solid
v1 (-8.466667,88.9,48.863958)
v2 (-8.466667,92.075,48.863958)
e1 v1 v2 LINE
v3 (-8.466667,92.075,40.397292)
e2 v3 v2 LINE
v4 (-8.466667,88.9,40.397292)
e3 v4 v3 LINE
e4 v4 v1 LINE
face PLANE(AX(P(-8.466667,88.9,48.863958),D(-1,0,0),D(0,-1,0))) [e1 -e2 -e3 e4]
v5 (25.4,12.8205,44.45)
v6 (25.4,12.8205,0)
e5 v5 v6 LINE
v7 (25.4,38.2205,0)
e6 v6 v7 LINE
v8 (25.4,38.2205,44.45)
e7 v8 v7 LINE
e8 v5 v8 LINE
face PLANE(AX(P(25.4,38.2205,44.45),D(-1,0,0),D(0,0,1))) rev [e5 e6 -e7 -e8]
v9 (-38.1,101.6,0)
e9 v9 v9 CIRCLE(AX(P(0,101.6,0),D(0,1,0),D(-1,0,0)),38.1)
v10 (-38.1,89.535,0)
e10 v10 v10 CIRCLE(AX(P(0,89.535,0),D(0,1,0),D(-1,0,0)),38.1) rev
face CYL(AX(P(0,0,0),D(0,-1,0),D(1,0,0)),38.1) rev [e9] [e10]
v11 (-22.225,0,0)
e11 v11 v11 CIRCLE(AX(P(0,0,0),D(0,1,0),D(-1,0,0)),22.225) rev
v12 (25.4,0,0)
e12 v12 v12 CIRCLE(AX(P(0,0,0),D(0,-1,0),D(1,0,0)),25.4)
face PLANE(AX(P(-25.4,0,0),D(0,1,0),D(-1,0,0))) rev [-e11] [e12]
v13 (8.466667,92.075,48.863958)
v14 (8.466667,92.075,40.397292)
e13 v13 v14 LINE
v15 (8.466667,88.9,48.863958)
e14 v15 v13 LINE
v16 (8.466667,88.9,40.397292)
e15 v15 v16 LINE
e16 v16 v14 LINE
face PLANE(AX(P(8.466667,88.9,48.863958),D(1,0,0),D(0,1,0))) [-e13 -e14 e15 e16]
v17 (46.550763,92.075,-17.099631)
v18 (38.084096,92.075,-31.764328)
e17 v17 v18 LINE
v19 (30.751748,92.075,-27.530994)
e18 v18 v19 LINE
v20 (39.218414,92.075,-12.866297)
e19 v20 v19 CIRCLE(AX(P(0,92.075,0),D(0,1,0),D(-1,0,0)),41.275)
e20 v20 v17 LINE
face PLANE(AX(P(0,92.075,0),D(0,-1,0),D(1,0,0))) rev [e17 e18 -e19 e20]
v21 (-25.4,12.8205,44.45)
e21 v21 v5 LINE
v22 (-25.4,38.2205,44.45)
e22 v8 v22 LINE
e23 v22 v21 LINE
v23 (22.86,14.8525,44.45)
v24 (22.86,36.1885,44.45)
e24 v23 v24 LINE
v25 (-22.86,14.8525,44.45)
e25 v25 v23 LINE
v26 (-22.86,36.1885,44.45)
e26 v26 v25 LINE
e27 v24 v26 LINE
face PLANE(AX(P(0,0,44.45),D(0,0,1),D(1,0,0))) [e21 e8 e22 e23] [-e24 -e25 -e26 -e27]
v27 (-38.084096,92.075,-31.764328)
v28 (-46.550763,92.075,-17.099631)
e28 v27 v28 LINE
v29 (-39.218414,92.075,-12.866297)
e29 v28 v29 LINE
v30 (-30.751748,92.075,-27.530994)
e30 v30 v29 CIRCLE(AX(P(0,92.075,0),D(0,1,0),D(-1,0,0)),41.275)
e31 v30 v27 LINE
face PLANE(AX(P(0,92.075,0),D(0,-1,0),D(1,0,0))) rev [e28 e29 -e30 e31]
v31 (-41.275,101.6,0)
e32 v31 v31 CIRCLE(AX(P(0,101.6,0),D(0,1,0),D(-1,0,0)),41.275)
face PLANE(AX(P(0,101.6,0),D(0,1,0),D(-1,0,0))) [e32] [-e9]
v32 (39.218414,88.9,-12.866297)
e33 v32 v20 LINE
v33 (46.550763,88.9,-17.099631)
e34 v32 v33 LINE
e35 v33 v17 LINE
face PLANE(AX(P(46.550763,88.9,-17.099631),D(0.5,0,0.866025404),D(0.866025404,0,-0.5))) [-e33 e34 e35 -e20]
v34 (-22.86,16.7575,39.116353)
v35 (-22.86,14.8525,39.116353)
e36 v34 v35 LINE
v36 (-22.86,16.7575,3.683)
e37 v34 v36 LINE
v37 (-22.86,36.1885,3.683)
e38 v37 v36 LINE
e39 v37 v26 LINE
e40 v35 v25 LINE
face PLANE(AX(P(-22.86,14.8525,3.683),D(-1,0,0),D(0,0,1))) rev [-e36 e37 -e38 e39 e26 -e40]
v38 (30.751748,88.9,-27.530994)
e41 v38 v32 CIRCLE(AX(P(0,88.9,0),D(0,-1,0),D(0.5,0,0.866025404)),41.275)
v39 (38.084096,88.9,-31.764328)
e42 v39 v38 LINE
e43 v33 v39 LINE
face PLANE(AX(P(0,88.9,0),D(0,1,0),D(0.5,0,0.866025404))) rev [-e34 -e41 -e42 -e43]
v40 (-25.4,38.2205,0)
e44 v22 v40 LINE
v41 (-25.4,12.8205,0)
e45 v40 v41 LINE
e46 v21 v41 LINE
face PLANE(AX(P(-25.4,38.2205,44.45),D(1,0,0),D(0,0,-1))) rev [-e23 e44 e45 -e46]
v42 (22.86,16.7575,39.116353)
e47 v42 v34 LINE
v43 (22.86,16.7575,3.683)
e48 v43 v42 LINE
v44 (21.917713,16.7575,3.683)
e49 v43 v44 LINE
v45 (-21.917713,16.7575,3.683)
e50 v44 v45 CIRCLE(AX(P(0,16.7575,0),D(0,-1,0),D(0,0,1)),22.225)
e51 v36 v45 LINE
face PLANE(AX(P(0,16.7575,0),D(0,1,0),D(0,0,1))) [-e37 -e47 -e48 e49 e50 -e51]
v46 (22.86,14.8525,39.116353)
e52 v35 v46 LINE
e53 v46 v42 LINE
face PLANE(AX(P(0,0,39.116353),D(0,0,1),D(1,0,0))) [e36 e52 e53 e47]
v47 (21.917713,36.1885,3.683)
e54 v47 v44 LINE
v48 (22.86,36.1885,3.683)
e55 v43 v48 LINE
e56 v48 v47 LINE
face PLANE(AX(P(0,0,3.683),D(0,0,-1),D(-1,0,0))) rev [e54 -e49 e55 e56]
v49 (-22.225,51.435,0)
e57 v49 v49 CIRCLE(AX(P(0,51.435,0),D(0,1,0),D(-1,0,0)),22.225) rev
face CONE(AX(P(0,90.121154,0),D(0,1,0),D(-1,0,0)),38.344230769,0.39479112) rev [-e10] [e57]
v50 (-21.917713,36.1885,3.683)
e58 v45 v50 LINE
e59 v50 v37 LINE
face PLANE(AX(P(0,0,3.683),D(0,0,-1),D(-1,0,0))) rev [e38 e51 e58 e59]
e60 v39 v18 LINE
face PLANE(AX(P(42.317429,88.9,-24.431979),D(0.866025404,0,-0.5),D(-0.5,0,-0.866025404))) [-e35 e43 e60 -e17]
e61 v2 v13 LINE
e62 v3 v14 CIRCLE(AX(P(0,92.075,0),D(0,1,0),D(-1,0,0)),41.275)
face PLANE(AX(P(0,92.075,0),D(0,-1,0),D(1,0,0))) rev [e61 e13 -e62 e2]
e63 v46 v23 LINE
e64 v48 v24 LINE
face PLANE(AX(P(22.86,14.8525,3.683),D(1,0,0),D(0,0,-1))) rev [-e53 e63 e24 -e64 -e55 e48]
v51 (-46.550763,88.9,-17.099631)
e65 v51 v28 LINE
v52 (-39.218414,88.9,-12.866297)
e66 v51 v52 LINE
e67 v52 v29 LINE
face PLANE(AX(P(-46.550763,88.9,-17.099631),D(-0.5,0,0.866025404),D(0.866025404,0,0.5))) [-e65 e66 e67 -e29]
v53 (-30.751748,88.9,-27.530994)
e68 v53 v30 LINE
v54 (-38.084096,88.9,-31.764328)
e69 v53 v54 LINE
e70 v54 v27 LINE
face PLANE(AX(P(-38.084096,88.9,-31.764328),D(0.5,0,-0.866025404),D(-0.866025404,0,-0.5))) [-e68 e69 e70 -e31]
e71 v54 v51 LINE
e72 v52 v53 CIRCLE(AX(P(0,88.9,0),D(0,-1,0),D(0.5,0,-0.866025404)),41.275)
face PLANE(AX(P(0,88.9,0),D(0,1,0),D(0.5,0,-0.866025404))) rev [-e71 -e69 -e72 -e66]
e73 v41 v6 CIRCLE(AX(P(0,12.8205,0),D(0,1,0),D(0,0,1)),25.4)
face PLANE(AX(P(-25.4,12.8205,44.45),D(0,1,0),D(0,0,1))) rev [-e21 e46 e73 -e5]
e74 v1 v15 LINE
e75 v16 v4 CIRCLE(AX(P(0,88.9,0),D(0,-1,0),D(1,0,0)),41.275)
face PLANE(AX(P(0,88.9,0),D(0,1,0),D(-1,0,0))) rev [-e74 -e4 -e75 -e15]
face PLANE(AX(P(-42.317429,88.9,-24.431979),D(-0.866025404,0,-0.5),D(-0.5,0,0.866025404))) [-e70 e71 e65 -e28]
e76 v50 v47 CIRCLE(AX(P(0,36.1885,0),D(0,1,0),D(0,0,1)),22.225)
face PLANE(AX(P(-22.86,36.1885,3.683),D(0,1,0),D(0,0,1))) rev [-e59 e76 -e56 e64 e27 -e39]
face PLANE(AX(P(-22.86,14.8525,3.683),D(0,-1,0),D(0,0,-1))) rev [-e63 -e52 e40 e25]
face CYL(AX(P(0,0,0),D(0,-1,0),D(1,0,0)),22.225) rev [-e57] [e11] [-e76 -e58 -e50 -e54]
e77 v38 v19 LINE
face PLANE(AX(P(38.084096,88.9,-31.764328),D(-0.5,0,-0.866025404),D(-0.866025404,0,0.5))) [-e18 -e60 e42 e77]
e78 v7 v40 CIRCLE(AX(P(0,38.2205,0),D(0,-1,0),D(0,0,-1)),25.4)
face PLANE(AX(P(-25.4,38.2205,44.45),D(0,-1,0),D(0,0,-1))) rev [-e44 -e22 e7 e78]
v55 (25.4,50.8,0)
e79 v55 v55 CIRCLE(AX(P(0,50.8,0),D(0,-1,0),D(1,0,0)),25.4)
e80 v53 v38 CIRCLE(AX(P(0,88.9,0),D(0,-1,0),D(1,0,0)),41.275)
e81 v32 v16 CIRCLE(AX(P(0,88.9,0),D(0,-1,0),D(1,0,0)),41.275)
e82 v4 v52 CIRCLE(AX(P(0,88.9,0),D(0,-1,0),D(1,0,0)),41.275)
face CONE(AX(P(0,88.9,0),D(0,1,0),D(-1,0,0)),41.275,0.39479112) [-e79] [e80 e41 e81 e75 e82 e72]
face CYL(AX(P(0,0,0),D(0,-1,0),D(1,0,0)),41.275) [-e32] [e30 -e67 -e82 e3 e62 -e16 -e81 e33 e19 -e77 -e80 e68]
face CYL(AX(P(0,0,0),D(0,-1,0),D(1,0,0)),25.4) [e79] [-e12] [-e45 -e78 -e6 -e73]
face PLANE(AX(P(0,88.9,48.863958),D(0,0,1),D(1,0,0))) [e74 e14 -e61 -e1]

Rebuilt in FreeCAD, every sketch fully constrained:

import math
import FreeCAD as App
import Part
import Sketcher
Q = App.Units.Quantity


def faces_at(feature, points):
    """Names of the faces that lie closest to the given points."""
    faces = feature.Shape.Faces
    near = lambda p: min(range(len(faces)), key=lambda i: faces[i].distToShape(Part.Vertex(*p))[0])
    return sorted({f"Face{near(p) + 1}" for p in points})

doc = App.newDocument("Part")
body = doc.addObject("PartDesign::Body", "Body")

# Sketch on XY plane
sketch1 = doc.addObject("Sketcher::SketchObject", "Sketch")
body.addObject(sketch1)
sketch1.AttachmentSupport = (doc.XY_Plane, [""])
sketch1.MapMode = "FlatFace"
sketch1.addGeometry(Part.LineSegment(App.Vector(0, 92.1, 0), App.Vector(-41.3, 92.1, 0)), False)
sketch1.addGeometry(Part.LineSegment(App.Vector(-41.3, 92.1, 0), App.Vector(-41.3, 88.9, 0)), False)
sketch1.addGeometry(Part.LineSegment(App.Vector(-41.3, 88.9, 0), App.Vector(-25.4, 50.8, 0)), False)
sketch1.addGeometry(Part.LineSegment(App.Vector(-25.4, 50.8, 0), App.Vector(-25.4, 0, 0)), False)
sketch1.addGeometry(Part.LineSegment(App.Vector(-25.4, 0, 0), App.Vector(0, 0, 0)), False)
sketch1.addGeometry(Part.LineSegment(App.Vector(0, 0, 0), App.Vector(0, 92.1, 0)), False)
sketch1.addConstraint(Sketcher.Constraint("Coincident", 0, 2, 1, 1))
sketch1.addConstraint(Sketcher.Constraint("Coincident", 1, 2, 2, 1))
sketch1.addConstraint(Sketcher.Constraint("Coincident", 2, 2, 3, 1))
sketch1.addConstraint(Sketcher.Constraint("Coincident", 3, 2, 4, 1))
sketch1.addConstraint(Sketcher.Constraint("Coincident", 4, 2, 5, 1))
sketch1.addConstraint(Sketcher.Constraint("Coincident", 5, 2, 0, 1))
sketch1.addConstraint(Sketcher.Constraint("Horizontal", 0))
sketch1.addConstraint(Sketcher.Constraint("Vertical", 1))
sketch1.addConstraint(Sketcher.Constraint("Vertical", 3))
sketch1.addConstraint(Sketcher.Constraint("Horizontal", 4))
sketch1.addConstraint(Sketcher.Constraint("Vertical", 5))
sketch1.addConstraint(Sketcher.Constraint("Coincident", 4, 2, -1, 1))
sketch1.addConstraint(Sketcher.Constraint("DistanceX", 4, 1, 4, 2, Q("1 in")))
sketch1.addConstraint(Sketcher.Constraint("DistanceY", 3, 2, 3, 1, Q("2 in")))
sketch1.addConstraint(Sketcher.Constraint("DistanceY", -1, 1, 1, 2, Q("3.5 in")))
sketch1.addConstraint(Sketcher.Constraint("DistanceX", 0, 2, 0, 1, Q("1.625 in")))
sketch1.addConstraint(Sketcher.Constraint("DistanceY", 1, 2, 1, 1, Q("0.125 in")))
revolution = doc.addObject("PartDesign::Revolution", "Revolution")
body.addObject(revolution)
revolution.Profile = sketch1
revolution.ReferenceAxis = (sketch1, ["V_Axis"])
revolution.Angle = 360
doc.recompute()

thickness = doc.addObject("PartDesign::Thickness", "Thickness")
body.addObject(thickness)
thickness.Base = (revolution, faces_at(revolution, [(0, 0, 0), (0, 92.075, 0)]))
thickness.Value = Q("0.125 in")
thickness.Reversed = True
thickness.Join = "Intersection"

# Sketch on XZ plane
sketch2 = doc.addObject("Sketcher::SketchObject", "Sketch001")
body.addObject(sketch2)
sketch2.AttachmentSupport = (doc.XZ_Plane, [""])
sketch2.MapMode = "FlatFace"
sketch2.AttachmentOffset = App.Placement(App.Vector(0, 0, -3.5 * 25.4), App.Rotation())
sketch2.addGeometry(Part.LineSegment(App.Vector(-8, 40, 0), App.Vector(-8, 49, 0)), False)
sketch2.addGeometry(Part.LineSegment(App.Vector(-8, 49, 0), App.Vector(8, 49, 0)), False)
sketch2.addGeometry(Part.LineSegment(App.Vector(8, 49, 0), App.Vector(8, 40, 0)), False)
sketch2.addGeometry(Part.ArcOfCircle(Part.Circle(App.Vector(0, 0, 0), App.Vector(0, 0, 1), 41), math.radians(78), math.radians(102)), False)
sketch2.addConstraint(Sketcher.Constraint("Coincident", 0, 2, 1, 1))
sketch2.addConstraint(Sketcher.Constraint("Coincident", 1, 2, 2, 1))
sketch2.addConstraint(Sketcher.Constraint("Coincident", 2, 2, 3, 1))
sketch2.addConstraint(Sketcher.Constraint("Coincident", 3, 2, 0, 1))
sketch2.addConstraint(Sketcher.Constraint("Vertical", 0))
sketch2.addConstraint(Sketcher.Constraint("Horizontal", 1))
sketch2.addConstraint(Sketcher.Constraint("Vertical", 2))
sketch2.addConstraint(Sketcher.Constraint("Coincident", 3, 3, -1, 1))
sketch2.addConstraint(Sketcher.Constraint("Horizontal", 2, 2, 3, 2))
sketch2.addConstraint(Sketcher.Constraint("Radius", 3, Q("1.625 in")))
sketch2.addConstraint(Sketcher.Constraint("DistanceX", 1, 1, 1, 2, 16.933333))
sketch2.addConstraint(Sketcher.Constraint("DistanceY", 0, 1, 0, 2, 8.466667))
pad1 = doc.addObject("PartDesign::Pad", "Pad")
body.addObject(pad1)
pad1.Profile = sketch2
pad1.Length = Q("0.125 in")
pad1.Reversed = True
doc.recompute()

polarpattern = doc.addObject("PartDesign::PolarPattern", "PolarPattern")
body.addObject(polarpattern)
polarpattern.Originals = [pad1]
polarpattern.Axis = (doc.Y_Axis, [""])
polarpattern.Angle = 360
polarpattern.Occurrences = 3
body.Tip = polarpattern

# Sketch on XY plane
sketch3 = doc.addObject("Sketcher::SketchObject", "Sketch002")
body.addObject(sketch3)
sketch3.AttachmentSupport = (doc.XY_Plane, [""])
sketch3.MapMode = "FlatFace"
sketch3.addGeometry(Part.LineSegment(App.Vector(-25, 38, 0), App.Vector(-25, 13, 0)), False)
sketch3.addGeometry(Part.LineSegment(App.Vector(-25, 13, 0), App.Vector(25, 13, 0)), False)
sketch3.addGeometry(Part.LineSegment(App.Vector(25, 13, 0), App.Vector(25, 38, 0)), False)
sketch3.addGeometry(Part.LineSegment(App.Vector(25, 38, 0), App.Vector(-25, 38, 0)), False)
sketch3.addConstraint(Sketcher.Constraint("Coincident", 0, 2, 1, 1))
sketch3.addConstraint(Sketcher.Constraint("Coincident", 1, 2, 2, 1))
sketch3.addConstraint(Sketcher.Constraint("Coincident", 2, 2, 3, 1))
sketch3.addConstraint(Sketcher.Constraint("Coincident", 3, 2, 0, 1))
sketch3.addConstraint(Sketcher.Constraint("Vertical", 0))
sketch3.addConstraint(Sketcher.Constraint("Horizontal", 1))
sketch3.addConstraint(Sketcher.Constraint("Vertical", 2))
sketch3.addConstraint(Sketcher.Constraint("Horizontal", 3))
sketch3.addConstraint(Sketcher.Constraint("DistanceX", 1, 1, 1, 2, Q("2 in")))
sketch3.addConstraint(Sketcher.Constraint("DistanceY", 0, 2, 0, 1, Q("1 in")))
sketch3.addConstraint(Sketcher.Constraint("DistanceX", 0, 2, -1, 1, Q("1 in")))
sketch3.addConstraint(Sketcher.Constraint("DistanceY", -1, 1, 0, 2, 12.8205))
pad2 = doc.addObject("PartDesign::Pad", "Pad001")
body.addObject(pad2)
pad2.Profile = sketch3
pad2.Length = Q("1.75 in")

# Sketch on XZ plane
sketch4 = doc.addObject("Sketcher::SketchObject", "Sketch003")
body.addObject(sketch4)
sketch4.AttachmentSupport = (doc.XZ_Plane, [""])
sketch4.MapMode = "FlatFace"
sketch4.AttachmentOffset = App.Placement(App.Vector(0, 0, -38.2205), App.Rotation())
sketch4.addGeometry(Part.Circle(App.Vector(0, 0, 0), App.Vector(0, 0, 1), 22), False)
sketch4.addConstraint(Sketcher.Constraint("Coincident", 0, 3, -1, 1))
sketch4.addConstraint(Sketcher.Constraint("Diameter", 0, Q("1.75 in")))
pocket1 = doc.addObject("PartDesign::Pocket", "Pocket")
body.addObject(pocket1)
pocket1.Profile = sketch4
pocket1.Type = "ThroughAll"
pocket1.Midplane = True

# Sketch on XY plane
sketch5 = doc.addObject("Sketcher::SketchObject", "Sketch004")
body.addObject(sketch5)
sketch5.AttachmentSupport = (doc.XY_Plane, [""])
sketch5.MapMode = "FlatFace"
sketch5.AttachmentOffset = App.Placement(App.Vector(0, 0, 1.75 * 25.4), App.Rotation())
sketch5.addGeometry(Part.LineSegment(App.Vector(-23, 36, 0), App.Vector(-23, 15, 0)), False)
sketch5.addGeometry(Part.LineSegment(App.Vector(-23, 15, 0), App.Vector(23, 15, 0)), False)
sketch5.addGeometry(Part.LineSegment(App.Vector(23, 15, 0), App.Vector(23, 36, 0)), False)
sketch5.addGeometry(Part.LineSegment(App.Vector(23, 36, 0), App.Vector(-23, 36, 0)), False)
sketch5.addConstraint(Sketcher.Constraint("Coincident", 0, 2, 1, 1))
sketch5.addConstraint(Sketcher.Constraint("Coincident", 1, 2, 2, 1))
sketch5.addConstraint(Sketcher.Constraint("Coincident", 2, 2, 3, 1))
sketch5.addConstraint(Sketcher.Constraint("Coincident", 3, 2, 0, 1))
sketch5.addConstraint(Sketcher.Constraint("Vertical", 0))
sketch5.addConstraint(Sketcher.Constraint("Horizontal", 1))
sketch5.addConstraint(Sketcher.Constraint("Vertical", 2))
sketch5.addConstraint(Sketcher.Constraint("Horizontal", 3))
sketch5.addConstraint(Sketcher.Constraint("DistanceX", 1, 1, 1, 2, Q("1.8 in")))
sketch5.addConstraint(Sketcher.Constraint("DistanceY", 0, 2, 0, 1, Q("0.84 in")))
sketch5.addConstraint(Sketcher.Constraint("DistanceX", 0, 2, -1, 1, Q("0.9 in")))
sketch5.addConstraint(Sketcher.Constraint("DistanceY", -1, 1, 0, 2, 14.8525))
pocket2 = doc.addObject("PartDesign::Pocket", "Pocket001")
body.addObject(pocket2)
pocket2.Profile = sketch5
pocket2.Length = Q("1.605 in")

# Sketch on XZ plane
sketch6 = doc.addObject("Sketcher::SketchObject", "Sketch005")
body.addObject(sketch6)
sketch6.AttachmentSupport = (doc.XZ_Plane, [""])
sketch6.MapMode = "FlatFace"
sketch6.AttachmentOffset = App.Placement(App.Vector(0, 0, -14.8525), App.Rotation())
sketch6.addGeometry(Part.LineSegment(App.Vector(-22.9, 22.9, 0), App.Vector(22.9, 22.9, 0)), False)
sketch6.addGeometry(Part.LineSegment(App.Vector(22.9, 22.9, 0), App.Vector(22.9, 0, 0)), False)
sketch6.addGeometry(Part.LineSegment(App.Vector(22.9, 0, 0), App.Vector(22.9, 3.7, 0)), False)
sketch6.addGeometry(Part.LineSegment(App.Vector(22.9, 3.7, 0), App.Vector(21.9, 3.7, 0)), False)
sketch6.addGeometry(Part.ArcOfCircle(Part.Circle(App.Vector(0, 0, 0), App.Vector(0, 0, 1), 22.2), math.radians(10), math.radians(180)), False)
sketch6.addGeometry(Part.LineSegment(App.Vector(-22.2, 0, 0), App.Vector(-22.9, 0, 0)), False)
sketch6.addGeometry(Part.LineSegment(App.Vector(-22.9, 0, 0), App.Vector(-22.9, 22.9, 0)), False)
sketch6.addConstraint(Sketcher.Constraint("Coincident", 0, 2, 1, 1))
sketch6.addConstraint(Sketcher.Constraint("Coincident", 1, 2, 2, 1))
sketch6.addConstraint(Sketcher.Constraint("Coincident", 2, 2, 3, 1))
sketch6.addConstraint(Sketcher.Constraint("Coincident", 3, 2, 4, 1))
sketch6.addConstraint(Sketcher.Constraint("Coincident", 4, 2, 5, 1))
sketch6.addConstraint(Sketcher.Constraint("Coincident", 5, 2, 6, 1))
sketch6.addConstraint(Sketcher.Constraint("Coincident", 6, 2, 0, 1))
sketch6.addConstraint(Sketcher.Constraint("Horizontal", 0))
sketch6.addConstraint(Sketcher.Constraint("Horizontal", 3))
sketch6.addConstraint(Sketcher.Constraint("Horizontal", 5))
sketch6.addConstraint(Sketcher.Constraint("Coincident", 4, 3, -1, 1))
sketch6.addConstraint(Sketcher.Constraint("Symmetric", 1, 2, 5, 2, -1, 1))
sketch6.addConstraint(Sketcher.Constraint("PointOnObject", 1, 2, -1))
sketch6.addConstraint(Sketcher.Constraint("Vertical", 0, 2, 2, 2))
sketch6.addConstraint(Sketcher.Constraint("DistanceX", 0, 1, 0, 2, Q("1.8 in")))
sketch6.addConstraint(Sketcher.Constraint("Radius", 4, Q("0.875 in")))
sketch6.addConstraint(Sketcher.Constraint("DistanceX", -1, 1, 0, 2, Q("0.9 in")))
sketch6.addConstraint(Sketcher.Constraint("Distance", 2, Q("0.145 in")))
sketch6.addConstraint(Sketcher.Constraint("DistanceX", 5, 2, 5, 1, 0.635353))
sketch6.addConstraint(Sketcher.Constraint("Distance", 1, 22.860353))
pad3 = doc.addObject("PartDesign::Pad", "Pad002")
body.addObject(pad3)
pad3.Profile = sketch6
pad3.Length = Q("0.075 in")
pad3.Reversed = True

# Sketch on XY plane
sketch7 = doc.addObject("Sketcher::SketchObject", "Sketch006")
body.addObject(sketch7)
sketch7.AttachmentSupport = (doc.XY_Plane, [""])
sketch7.MapMode = "FlatFace"
sketch7.AttachmentOffset = App.Placement(App.Vector(0, 0, 22.860353), App.Rotation())
sketch7.addGeometry(Part.LineSegment(App.Vector(-22.9, 16.8, 0), App.Vector(-22.9, 14.9, 0)), False)
sketch7.addGeometry(Part.LineSegment(App.Vector(-22.9, 14.9, 0), App.Vector(22.9, 14.9, 0)), False)
sketch7.addGeometry(Part.LineSegment(App.Vector(22.9, 14.9, 0), App.Vector(22.9, 16.8, 0)), False)
sketch7.addGeometry(Part.LineSegment(App.Vector(22.9, 16.8, 0), App.Vector(-22.9, 16.8, 0)), False)
sketch7.addConstraint(Sketcher.Constraint("Coincident", 0, 2, 1, 1))
sketch7.addConstraint(Sketcher.Constraint("Coincident", 1, 2, 2, 1))
sketch7.addConstraint(Sketcher.Constraint("Coincident", 2, 2, 3, 1))
sketch7.addConstraint(Sketcher.Constraint("Coincident", 3, 2, 0, 1))
sketch7.addConstraint(Sketcher.Constraint("Vertical", 0))
sketch7.addConstraint(Sketcher.Constraint("Horizontal", 1))
sketch7.addConstraint(Sketcher.Constraint("Vertical", 2))
sketch7.addConstraint(Sketcher.Constraint("Horizontal", 3))
sketch7.addConstraint(Sketcher.Constraint("DistanceX", 1, 1, 1, 2, Q("1.8 in")))
sketch7.addConstraint(Sketcher.Constraint("DistanceX", 0, 2, -1, 1, Q("0.9 in")))
sketch7.addConstraint(Sketcher.Constraint("DistanceY", 0, 2, 0, 1, Q("0.075 in")))
sketch7.addConstraint(Sketcher.Constraint("DistanceY", -1, 1, 0, 2, 14.8525))
pad4 = doc.addObject("PartDesign::Pad", "Pad003")
body.addObject(pad4)
pad4.Profile = sketch7
pad4.Length = Q("0.64 in")

# Sketch on XZ plane
sketch8 = doc.addObject("Sketcher::SketchObject", "Sketch007")
body.addObject(sketch8)
sketch8.AttachmentSupport = (doc.XZ_Plane, [""])
sketch8.MapMode = "FlatFace"
sketch8.AttachmentOffset = App.Placement(App.Vector(0, 0, -3.625 * 25.4), App.Rotation())
sketch8.addGeometry(Part.Circle(App.Vector(0, 0, 0), App.Vector(0, 0, 1), 41), False)
sketch8.addGeometry(Part.Circle(App.Vector(0, 0, 0), App.Vector(0, 0, 1), 38), False)
sketch8.addConstraint(Sketcher.Constraint("Coincident", 0, 3, -1, 1))
sketch8.addConstraint(Sketcher.Constraint("Coincident", 1, 3, -1, 1))
sketch8.addConstraint(Sketcher.Constraint("Diameter", 1, Q("3 in")))
sketch8.addConstraint(Sketcher.Constraint("Diameter", 0, Q("3.25 in")))
pad5 = doc.addObject("PartDesign::Pad", "Pad004")
body.addObject(pad5)
pad5.Profile = sketch8
pad5.Length = Q("0.375 in")
pad5.Reversed = True

doc.recompute()
